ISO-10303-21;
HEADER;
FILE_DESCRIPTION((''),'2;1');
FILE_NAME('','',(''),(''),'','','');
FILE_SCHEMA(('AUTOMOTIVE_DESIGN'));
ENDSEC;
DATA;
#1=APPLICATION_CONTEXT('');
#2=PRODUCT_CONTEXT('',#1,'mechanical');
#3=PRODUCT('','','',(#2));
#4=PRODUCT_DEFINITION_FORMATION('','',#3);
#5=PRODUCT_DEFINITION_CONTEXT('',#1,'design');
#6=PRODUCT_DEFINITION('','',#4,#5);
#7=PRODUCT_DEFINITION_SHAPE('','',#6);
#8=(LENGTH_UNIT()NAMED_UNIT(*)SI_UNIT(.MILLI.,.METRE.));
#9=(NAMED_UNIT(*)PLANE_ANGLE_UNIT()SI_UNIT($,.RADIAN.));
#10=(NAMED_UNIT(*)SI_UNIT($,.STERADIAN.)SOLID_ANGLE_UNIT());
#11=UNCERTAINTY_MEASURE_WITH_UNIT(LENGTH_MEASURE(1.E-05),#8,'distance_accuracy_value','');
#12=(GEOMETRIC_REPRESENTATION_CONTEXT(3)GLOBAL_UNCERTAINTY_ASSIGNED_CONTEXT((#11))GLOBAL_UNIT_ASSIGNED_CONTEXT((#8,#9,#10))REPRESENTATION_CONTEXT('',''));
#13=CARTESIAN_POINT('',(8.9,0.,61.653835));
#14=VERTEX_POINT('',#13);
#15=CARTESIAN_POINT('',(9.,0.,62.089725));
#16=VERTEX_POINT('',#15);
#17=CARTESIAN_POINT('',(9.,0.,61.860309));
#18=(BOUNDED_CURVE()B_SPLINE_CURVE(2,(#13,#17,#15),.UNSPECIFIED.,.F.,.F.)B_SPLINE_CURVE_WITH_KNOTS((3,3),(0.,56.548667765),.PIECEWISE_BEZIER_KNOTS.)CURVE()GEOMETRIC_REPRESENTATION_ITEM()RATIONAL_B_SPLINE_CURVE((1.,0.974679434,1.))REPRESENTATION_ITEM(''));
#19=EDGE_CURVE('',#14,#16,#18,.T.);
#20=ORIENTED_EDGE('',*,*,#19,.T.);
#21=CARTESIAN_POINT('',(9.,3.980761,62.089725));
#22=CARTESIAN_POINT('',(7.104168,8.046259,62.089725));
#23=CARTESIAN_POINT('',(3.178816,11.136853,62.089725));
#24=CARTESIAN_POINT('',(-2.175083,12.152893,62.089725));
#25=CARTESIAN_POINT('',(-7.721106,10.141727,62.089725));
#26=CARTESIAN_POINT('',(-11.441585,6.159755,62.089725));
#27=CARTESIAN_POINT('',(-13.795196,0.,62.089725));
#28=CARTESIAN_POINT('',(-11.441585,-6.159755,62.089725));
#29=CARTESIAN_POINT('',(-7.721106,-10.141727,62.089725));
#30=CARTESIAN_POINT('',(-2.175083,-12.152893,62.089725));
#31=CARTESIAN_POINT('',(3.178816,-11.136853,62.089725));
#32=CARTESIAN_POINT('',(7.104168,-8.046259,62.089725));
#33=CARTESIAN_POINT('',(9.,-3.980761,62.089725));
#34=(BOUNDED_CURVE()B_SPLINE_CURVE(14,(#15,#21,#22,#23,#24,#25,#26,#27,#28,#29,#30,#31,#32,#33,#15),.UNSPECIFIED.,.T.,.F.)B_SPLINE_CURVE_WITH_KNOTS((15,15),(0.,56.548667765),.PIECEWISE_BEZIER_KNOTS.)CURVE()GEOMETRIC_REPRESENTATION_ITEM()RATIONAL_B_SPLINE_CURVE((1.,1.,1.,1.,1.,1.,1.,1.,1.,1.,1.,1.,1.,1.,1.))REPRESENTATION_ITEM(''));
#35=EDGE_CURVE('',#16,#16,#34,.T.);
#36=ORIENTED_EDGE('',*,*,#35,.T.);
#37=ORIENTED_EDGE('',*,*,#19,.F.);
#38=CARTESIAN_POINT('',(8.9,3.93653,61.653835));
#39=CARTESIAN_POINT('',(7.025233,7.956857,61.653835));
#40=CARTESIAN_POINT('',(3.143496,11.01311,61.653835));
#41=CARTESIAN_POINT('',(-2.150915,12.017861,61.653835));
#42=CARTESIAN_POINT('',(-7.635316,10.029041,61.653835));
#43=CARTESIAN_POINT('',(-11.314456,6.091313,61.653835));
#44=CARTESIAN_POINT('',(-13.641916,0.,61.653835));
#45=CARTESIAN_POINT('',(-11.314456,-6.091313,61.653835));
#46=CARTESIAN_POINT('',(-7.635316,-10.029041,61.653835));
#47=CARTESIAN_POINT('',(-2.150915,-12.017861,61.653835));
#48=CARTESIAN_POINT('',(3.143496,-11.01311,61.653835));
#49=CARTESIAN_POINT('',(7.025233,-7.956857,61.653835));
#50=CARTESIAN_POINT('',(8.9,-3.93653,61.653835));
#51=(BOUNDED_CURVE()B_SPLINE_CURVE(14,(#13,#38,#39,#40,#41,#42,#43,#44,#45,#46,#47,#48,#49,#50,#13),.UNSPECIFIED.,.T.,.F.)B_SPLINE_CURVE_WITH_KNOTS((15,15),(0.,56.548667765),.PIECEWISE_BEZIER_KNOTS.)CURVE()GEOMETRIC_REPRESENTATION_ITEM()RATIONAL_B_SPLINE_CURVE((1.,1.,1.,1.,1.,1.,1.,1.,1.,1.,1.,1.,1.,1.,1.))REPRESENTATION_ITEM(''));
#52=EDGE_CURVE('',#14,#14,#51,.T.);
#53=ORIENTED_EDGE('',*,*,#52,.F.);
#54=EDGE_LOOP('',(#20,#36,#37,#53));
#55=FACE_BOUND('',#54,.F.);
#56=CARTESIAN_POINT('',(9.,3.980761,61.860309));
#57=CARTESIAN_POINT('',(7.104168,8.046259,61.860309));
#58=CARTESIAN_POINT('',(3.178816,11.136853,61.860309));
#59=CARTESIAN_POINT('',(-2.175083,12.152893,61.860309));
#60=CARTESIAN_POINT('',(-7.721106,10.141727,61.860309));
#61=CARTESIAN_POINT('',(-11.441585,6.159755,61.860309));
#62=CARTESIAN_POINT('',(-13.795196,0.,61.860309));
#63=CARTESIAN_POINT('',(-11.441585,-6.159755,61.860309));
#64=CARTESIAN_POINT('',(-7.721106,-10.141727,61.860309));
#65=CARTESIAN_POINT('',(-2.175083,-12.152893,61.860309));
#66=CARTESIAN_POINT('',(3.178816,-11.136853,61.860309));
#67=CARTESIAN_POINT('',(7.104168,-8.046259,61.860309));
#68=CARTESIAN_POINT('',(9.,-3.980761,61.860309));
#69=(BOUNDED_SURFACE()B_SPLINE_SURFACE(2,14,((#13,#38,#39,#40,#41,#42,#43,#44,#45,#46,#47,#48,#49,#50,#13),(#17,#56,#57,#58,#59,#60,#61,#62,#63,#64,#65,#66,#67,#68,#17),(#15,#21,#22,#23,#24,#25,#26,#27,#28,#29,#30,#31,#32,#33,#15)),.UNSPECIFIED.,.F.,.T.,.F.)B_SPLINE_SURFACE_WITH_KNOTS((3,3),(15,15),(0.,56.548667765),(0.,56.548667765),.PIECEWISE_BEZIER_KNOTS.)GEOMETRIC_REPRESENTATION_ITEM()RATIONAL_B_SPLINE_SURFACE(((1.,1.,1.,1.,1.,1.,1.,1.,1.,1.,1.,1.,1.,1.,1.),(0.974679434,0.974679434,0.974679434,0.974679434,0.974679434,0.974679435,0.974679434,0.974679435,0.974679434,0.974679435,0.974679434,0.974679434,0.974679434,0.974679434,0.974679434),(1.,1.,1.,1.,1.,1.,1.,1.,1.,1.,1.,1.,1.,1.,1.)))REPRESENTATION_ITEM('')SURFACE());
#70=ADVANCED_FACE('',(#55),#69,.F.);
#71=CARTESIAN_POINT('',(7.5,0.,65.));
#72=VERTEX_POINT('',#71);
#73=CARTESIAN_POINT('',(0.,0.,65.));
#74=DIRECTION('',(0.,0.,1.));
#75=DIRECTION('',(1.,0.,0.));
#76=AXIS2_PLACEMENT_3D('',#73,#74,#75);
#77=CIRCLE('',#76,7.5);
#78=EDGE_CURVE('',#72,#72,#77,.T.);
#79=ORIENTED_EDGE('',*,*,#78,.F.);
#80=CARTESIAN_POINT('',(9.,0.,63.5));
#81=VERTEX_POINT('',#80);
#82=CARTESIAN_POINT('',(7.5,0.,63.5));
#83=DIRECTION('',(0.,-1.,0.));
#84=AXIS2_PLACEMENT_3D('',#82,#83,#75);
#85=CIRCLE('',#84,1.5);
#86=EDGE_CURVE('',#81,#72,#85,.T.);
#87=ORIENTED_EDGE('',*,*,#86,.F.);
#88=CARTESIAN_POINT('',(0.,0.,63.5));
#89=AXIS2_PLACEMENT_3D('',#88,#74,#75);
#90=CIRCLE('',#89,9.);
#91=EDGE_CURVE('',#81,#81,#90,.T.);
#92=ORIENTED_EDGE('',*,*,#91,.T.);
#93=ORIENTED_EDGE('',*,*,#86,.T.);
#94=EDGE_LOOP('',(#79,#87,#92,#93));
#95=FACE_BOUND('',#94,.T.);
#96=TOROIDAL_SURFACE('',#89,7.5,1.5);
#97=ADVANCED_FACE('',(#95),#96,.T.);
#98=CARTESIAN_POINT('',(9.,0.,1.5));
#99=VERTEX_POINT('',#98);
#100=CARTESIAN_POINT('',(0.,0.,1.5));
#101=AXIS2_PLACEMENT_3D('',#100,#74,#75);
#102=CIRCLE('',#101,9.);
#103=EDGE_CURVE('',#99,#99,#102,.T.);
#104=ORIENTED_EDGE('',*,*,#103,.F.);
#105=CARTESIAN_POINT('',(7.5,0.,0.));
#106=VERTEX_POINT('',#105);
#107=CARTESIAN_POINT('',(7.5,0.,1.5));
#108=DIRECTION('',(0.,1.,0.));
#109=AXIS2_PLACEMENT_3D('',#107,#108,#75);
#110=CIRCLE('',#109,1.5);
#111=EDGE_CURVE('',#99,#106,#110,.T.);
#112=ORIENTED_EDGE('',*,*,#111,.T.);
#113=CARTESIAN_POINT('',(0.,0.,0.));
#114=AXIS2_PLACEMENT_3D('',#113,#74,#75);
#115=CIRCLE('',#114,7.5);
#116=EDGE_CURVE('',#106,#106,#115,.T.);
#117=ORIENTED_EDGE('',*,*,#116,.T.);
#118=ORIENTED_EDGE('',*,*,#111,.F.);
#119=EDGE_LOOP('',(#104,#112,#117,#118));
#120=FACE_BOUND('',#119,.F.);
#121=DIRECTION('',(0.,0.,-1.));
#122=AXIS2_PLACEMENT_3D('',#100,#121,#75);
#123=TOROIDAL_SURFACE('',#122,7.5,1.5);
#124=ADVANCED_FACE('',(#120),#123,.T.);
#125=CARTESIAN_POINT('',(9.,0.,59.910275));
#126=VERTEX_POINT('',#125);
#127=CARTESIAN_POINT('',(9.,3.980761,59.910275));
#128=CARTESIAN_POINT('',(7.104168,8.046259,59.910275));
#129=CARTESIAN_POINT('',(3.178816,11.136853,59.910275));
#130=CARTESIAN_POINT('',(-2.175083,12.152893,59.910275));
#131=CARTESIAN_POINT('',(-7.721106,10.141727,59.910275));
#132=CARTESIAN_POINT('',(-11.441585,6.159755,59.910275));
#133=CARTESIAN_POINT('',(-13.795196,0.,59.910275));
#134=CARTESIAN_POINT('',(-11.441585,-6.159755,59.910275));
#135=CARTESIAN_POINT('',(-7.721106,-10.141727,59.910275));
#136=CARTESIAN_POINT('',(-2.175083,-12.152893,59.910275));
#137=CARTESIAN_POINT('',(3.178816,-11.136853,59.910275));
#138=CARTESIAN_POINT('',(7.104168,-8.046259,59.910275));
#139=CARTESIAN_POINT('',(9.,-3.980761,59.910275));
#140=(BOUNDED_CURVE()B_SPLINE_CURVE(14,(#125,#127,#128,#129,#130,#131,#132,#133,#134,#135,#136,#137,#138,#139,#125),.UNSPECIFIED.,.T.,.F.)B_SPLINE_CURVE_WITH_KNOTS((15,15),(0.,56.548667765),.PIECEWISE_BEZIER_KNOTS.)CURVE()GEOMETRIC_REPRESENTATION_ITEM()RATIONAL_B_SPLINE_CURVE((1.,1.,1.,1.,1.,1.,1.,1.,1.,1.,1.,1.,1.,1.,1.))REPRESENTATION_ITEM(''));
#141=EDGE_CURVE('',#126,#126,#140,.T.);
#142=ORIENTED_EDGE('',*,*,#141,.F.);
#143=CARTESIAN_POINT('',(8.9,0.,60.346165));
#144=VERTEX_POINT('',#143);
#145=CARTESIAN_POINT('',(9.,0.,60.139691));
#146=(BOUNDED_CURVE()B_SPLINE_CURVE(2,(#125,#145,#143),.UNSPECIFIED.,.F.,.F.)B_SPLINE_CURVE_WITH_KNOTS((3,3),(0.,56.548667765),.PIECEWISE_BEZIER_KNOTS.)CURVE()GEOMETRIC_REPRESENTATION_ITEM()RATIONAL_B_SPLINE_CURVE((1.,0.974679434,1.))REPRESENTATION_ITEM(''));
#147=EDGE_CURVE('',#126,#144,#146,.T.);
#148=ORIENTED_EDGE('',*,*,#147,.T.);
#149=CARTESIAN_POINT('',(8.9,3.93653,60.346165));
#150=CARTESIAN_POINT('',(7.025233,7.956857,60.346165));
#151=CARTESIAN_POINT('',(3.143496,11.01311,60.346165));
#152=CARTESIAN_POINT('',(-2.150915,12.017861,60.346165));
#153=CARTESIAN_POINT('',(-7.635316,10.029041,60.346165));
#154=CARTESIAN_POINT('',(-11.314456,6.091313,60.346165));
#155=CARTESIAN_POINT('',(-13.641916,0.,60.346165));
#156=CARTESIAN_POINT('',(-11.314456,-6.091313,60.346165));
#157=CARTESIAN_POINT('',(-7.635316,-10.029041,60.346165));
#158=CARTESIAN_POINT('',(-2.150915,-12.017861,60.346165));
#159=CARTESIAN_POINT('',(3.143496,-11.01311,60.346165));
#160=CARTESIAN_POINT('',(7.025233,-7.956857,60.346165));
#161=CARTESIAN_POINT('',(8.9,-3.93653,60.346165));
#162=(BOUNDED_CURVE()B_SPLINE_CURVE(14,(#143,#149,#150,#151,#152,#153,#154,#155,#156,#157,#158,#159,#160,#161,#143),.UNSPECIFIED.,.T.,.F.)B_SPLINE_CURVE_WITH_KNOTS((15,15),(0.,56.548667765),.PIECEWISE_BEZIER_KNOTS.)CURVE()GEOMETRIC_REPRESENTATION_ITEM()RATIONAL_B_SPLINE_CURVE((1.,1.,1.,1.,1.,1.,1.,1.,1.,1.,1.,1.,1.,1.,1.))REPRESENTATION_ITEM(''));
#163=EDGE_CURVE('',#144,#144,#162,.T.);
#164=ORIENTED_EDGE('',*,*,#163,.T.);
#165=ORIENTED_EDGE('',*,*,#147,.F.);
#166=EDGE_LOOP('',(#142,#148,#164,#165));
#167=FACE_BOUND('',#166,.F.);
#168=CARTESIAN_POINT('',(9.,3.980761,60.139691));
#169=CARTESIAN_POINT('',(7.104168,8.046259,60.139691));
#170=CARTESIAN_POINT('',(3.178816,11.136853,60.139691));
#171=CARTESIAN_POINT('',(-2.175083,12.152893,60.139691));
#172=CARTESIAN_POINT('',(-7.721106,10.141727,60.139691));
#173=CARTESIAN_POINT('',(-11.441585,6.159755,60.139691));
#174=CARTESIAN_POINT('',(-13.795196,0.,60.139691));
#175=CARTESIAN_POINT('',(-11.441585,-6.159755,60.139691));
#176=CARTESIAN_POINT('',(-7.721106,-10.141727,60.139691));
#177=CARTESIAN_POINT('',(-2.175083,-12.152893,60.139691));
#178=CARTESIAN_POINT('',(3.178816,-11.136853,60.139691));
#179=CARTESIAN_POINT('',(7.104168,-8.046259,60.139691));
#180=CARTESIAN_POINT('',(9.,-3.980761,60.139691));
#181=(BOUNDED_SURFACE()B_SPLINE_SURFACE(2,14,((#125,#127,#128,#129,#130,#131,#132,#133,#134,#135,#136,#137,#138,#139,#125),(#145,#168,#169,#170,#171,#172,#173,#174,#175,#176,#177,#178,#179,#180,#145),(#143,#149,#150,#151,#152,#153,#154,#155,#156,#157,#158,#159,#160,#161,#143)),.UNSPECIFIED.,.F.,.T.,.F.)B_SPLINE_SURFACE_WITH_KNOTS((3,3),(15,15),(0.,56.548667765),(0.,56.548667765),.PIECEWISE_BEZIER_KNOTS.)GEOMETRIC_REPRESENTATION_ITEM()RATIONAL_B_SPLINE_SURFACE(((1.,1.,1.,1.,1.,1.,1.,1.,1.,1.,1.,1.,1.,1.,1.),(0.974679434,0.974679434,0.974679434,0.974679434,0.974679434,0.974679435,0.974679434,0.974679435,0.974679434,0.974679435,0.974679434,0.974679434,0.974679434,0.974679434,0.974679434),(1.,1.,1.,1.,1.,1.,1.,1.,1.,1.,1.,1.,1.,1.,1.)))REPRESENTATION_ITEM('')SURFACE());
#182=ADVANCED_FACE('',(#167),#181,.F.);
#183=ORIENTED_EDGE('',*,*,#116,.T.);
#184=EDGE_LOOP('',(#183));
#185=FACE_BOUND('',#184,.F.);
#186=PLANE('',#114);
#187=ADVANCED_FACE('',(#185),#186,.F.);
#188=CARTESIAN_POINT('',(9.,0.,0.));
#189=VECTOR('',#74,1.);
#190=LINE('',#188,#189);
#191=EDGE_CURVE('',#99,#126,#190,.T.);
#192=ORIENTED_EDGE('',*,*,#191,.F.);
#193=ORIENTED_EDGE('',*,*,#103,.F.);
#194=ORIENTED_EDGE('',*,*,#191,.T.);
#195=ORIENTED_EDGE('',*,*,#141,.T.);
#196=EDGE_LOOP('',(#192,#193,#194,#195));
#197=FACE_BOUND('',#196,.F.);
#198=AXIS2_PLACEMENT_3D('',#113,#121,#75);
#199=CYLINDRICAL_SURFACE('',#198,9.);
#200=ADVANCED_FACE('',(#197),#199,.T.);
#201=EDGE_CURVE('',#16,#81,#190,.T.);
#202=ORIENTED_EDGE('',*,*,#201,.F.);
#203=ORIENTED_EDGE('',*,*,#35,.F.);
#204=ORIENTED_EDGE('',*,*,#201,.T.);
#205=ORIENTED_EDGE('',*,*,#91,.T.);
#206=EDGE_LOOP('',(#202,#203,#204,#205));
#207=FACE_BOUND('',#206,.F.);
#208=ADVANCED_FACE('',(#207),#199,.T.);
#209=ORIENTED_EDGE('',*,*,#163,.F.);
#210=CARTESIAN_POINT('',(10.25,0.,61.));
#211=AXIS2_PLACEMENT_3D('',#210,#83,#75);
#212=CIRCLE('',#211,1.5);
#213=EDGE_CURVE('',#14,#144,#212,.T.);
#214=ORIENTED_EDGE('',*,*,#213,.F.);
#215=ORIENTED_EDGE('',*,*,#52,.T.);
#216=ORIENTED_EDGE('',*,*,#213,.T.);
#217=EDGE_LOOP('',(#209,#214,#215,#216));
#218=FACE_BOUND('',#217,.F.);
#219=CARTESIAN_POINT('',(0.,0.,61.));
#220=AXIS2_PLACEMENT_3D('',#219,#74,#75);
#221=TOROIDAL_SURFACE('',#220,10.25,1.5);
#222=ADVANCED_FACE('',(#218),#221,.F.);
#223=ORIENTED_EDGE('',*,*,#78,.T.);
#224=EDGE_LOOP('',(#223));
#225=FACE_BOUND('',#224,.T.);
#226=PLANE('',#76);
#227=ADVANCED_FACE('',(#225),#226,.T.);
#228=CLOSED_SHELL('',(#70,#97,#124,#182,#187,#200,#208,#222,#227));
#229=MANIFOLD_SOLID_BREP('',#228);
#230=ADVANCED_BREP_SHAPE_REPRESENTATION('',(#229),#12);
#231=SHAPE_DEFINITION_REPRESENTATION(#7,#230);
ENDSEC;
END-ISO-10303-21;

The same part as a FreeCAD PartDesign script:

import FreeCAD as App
import Part
import Sketcher
from FreeCAD import Vector


def edges_at(feature, points):
    """Names of the edges that pass closest to the given points."""
    edges = feature.Shape.Edges
    near = lambda p: min(range(len(edges)), key=lambda i: edges[i].distToShape(Part.Vertex(*p))[0])
    return sorted({f"Edge{near(p) + 1}" for p in points})

doc = App.newDocument("Part")
params = doc.addObject("Spreadsheet::Sheet", "Params")
for row, (alias, value) in enumerate([
    ("sketch1_diameter", "18 mm"),
    ("pad1_length", "65 mm"),
    ("fillet_radius", "1.5 mm"),
    ("sketch2_diameter", "3 mm"),
    ("groove_angle", "360 deg"),
    ("fillet2_radius", "1 mm"),
], start=1):
    params.set(f"A{row}", alias)
    params.set(f"B{row}", "=" + value)
    params.setAlias(f"B{row}", alias)

body = doc.addObject("PartDesign::Body", "Body")

sketch1 = body.newObject("Sketcher::SketchObject", "Sketch")
sketch1.AttachmentSupport = (doc.getObject("XY_Plane"), [""])
sketch1.MapMode = "FlatFace"
sketch1.addGeometry(Part.Circle(Vector(0, 0, 0), Vector(0, 0, 1), 9), False)
sketch1.addConstraint(Sketcher.Constraint("Coincident", 0, 3, -1, 1))
sketch1.addConstraint(Sketcher.Constraint("Diameter", 0, 18.0))
sketch1.setExpression("Constraints[1]", "Params.sketch1_diameter")
pad1 = body.newObject("PartDesign::Pad", "Pad")
pad1.Profile = sketch1
pad1.setExpression("Length", "Params.pad1_length")
doc.recompute()

fillet = body.newObject("PartDesign::Fillet", "Fillet")
fillet.Base = (pad1, edges_at(pad1, [(-9, 0, 65), (-9, 0, 0)]))
fillet.setExpression("Radius", "Params.fillet_radius")

sketch2 = body.newObject("Sketcher::SketchObject", "Sketch001")
sketch2.AttachmentSupport = (doc.getObject("XZ_Plane"), [""])
sketch2.MapMode = "FlatFace"
sketch2.addGeometry(Part.Circle(Vector(10.2, 61, 0), Vector(0, 0, 1), 1.5), False)
sketch2.addConstraint(Sketcher.Constraint("Diameter", 0, 3.0))
sketch2.addConstraint(Sketcher.Constraint("DistanceY", -1, 1, 0, 3, 61.0))
sketch2.addConstraint(Sketcher.Constraint("DistanceX", -1, 1, 0, 3, 10.25))
sketch2.setExpression("Constraints[0]", "Params.sketch2_diameter")
groove = body.newObject("PartDesign::Groove", "Groove")
groove.Profile = sketch2
groove.ReferenceAxis = (sketch2, ["V_Axis"])
groove.setExpression("Angle", "Params.groove_angle")
doc.recompute()

fillet2 = body.newObject("PartDesign::Fillet", "Fillet001")
fillet2.Base = (groove, edges_at(groove, [(-9, 0, 60.171), (-9, 0, 61.829)]))
fillet2.setExpression("Radius", "Params.fillet2_radius")

doc.recompute()
